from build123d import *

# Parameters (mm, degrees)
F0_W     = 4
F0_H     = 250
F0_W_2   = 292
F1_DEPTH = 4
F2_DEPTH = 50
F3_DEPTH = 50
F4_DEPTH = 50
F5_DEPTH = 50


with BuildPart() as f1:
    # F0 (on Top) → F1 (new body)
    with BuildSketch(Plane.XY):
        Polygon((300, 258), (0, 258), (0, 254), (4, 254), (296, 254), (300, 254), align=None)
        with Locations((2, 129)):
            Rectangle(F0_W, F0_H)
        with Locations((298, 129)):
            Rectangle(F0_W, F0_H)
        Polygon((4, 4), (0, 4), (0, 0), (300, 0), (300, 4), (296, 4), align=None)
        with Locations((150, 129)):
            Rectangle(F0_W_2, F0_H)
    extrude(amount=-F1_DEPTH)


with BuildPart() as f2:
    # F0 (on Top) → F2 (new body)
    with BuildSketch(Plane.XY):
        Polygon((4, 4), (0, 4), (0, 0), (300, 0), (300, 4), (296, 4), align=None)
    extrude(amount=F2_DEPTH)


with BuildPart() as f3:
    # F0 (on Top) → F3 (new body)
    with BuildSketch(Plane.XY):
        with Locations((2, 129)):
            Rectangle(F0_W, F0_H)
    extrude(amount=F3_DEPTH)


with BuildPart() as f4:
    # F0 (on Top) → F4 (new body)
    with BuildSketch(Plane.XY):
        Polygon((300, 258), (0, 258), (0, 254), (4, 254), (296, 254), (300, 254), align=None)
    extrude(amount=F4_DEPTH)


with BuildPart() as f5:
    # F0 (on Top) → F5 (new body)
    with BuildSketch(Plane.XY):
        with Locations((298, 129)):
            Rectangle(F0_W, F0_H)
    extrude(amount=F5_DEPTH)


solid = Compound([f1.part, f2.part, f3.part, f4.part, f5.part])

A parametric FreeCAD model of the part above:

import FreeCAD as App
import Part
import Sketcher
from FreeCAD import Vector
Q = App.Units.Quantity

doc = App.newDocument("Part")
body = doc.addObject("PartDesign::Body", "Body")

# Sketch on XY plane
sketch1 = body.newObject("Sketcher::SketchObject", "Sketch")
sketch1.AttachmentSupport = (doc.getObject("XY_Plane"), [""])
sketch1.MapMode = "FlatFace"
sketch1.addGeometry([
    Part.LineSegment(Vector(300, 258, 0), Vector(0, 258, 0)),
    Part.LineSegment(Vector(0, 258, 0), Vector(0, 0, 0)),
    Part.LineSegment(Vector(0, 0, 0), Vector(300, 0, 0)),
    Part.LineSegment(Vector(300, 0, 0), Vector(300, 258, 0)),
], False)
sketch1.addConstraint([
    Sketcher.Constraint("Coincident", 0, 2, 1, 1),
    Sketcher.Constraint("Coincident", 1, 2, 2, 1),
    Sketcher.Constraint("Coincident", 2, 2, 3, 1),
    Sketcher.Constraint("Coincident", 3, 2, 0, 1),
    Sketcher.Constraint("Horizontal", 0),
    Sketcher.Constraint("Vertical", 1),
    Sketcher.Constraint("Horizontal", 2),
    Sketcher.Constraint("Vertical", 3),
    Sketcher.Constraint("Coincident", 1, 2, -1, 1),
    Sketcher.Constraint("DistanceX", 0, 2, 0, 1, Q("300 mm")),
    Sketcher.Constraint("DistanceY", 1, 2, 1, 1, Q("258 mm")),
])
pad1 = body.newObject("PartDesign::Pad", "Pad")
pad1.Profile = sketch1
pad1.Length = 4
pad1.Reversed = True
body2 = doc.addObject("PartDesign::Body", "Body001")

# Sketch on XY plane
sketch2 = body2.newObject("Sketcher::SketchObject", "Sketch001")
sketch2.AttachmentSupport = (doc.getObject("XY_Plane001"), [""])
sketch2.MapMode = "FlatFace"
sketch2.addGeometry([
    Part.LineSegment(Vector(0, 4, 0), Vector(0, 0, 0)),
    Part.LineSegment(Vector(0, 0, 0), Vector(300, 0, 0)),
    Part.LineSegment(Vector(300, 0, 0), Vector(300, 4, 0)),
    Part.LineSegment(Vector(300, 4, 0), Vector(0, 4, 0)),
], False)
sketch2.addConstraint([
    Sketcher.Constraint("Coincident", 0, 2, 1, 1),
    Sketcher.Constraint("Coincident", 1, 2, 2, 1),
    Sketcher.Constraint("Coincident", 2, 2, 3, 1),
    Sketcher.Constraint("Coincident", 3, 2, 0, 1),
    Sketcher.Constraint("Vertical", 0),
    Sketcher.Constraint("Horizontal", 1),
    Sketcher.Constraint("Vertical", 2),
    Sketcher.Constraint("Horizontal", 3),
    Sketcher.Constraint("Coincident", 0, 2, -1, 1),
    Sketcher.Constraint("DistanceX", 1, 1, 1, 2, Q("300 mm")),
    Sketcher.Constraint("DistanceY", 0, 2, 0, 1, Q("4 mm")),
])
pad2 = body2.newObject("PartDesign::Pad", "Pad001")
pad2.Profile = sketch2
pad2.Length = 50
body3 = doc.addObject("PartDesign::Body", "Body002")

# Sketch on XY plane
sketch3 = body3.newObject("Sketcher::SketchObject", "Sketch002")
sketch3.AttachmentSupport = (doc.getObject("XY_Plane002"), [""])
sketch3.MapMode = "FlatFace"
sketch3.addGeometry([
    Part.LineSegment(Vector(0, 254, 0), Vector(0, 4, 0)),
    Part.LineSegment(Vector(0, 4, 0), Vector(4, 4, 0)),
    Part.LineSegment(Vector(4, 4, 0), Vector(4, 254, 0)),
    Part.LineSegment(Vector(4, 254, 0), Vector(0, 254, 0)),
], False)
sketch3.addConstraint([
    Sketcher.Constraint("Coincident", 0, 2, 1, 1),
    Sketcher.Constraint("Coincident", 1, 2, 2, 1),
    Sketcher.Constraint("Coincident", 2, 2, 3, 1),
    Sketcher.Constraint("Coincident", 3, 2, 0, 1),
    Sketcher.Constraint("Vertical", 0),
    Sketcher.Constraint("Horizontal", 1),
    Sketcher.Constraint("Vertical", 2),
    Sketcher.Constraint("Horizontal", 3),
    Sketcher.Constraint("PointOnObject", 0, 2, -2),
    Sketcher.Constraint("DistanceX", 1, 1, 1, 2, Q("4 mm")),
    Sketcher.Constraint("DistanceY", 0, 2, 0, 1, Q("250 mm")),
    Sketcher.Constraint("DistanceY", -1, 1, 0, 2, Q("4 mm")),
])
pad3 = body3.newObject("PartDesign::Pad", "Pad002")
pad3.Profile = sketch3
pad3.Length = 50
body4 = doc.addObject("PartDesign::Body", "Body003")

# Sketch on XY plane
sketch4 = body4.newObject("Sketcher::SketchObject", "Sketch003")
sketch4.AttachmentSupport = (doc.getObject("XY_Plane003"), [""])
sketch4.MapMode = "FlatFace"
sketch4.addGeometry([
    Part.LineSegment(Vector(300, 258, 0), Vector(0, 258, 0)),
    Part.LineSegment(Vector(0, 258, 0), Vector(0, 254, 0)),
    Part.LineSegment(Vector(0, 254, 0), Vector(300, 254, 0)),
    Part.LineSegment(Vector(300, 254, 0), Vector(300, 258, 0)),
], False)
sketch4.addConstraint([
    Sketcher.Constraint("Coincident", 0, 2, 1, 1),
    Sketcher.Constraint("Coincident", 1, 2, 2, 1),
    Sketcher.Constraint("Coincident", 2, 2, 3, 1),
    Sketcher.Constraint("Coincident", 3, 2, 0, 1),
    Sketcher.Constraint("Horizontal", 0),
    Sketcher.Constraint("Vertical", 1),
    Sketcher.Constraint("Horizontal", 2),
    Sketcher.Constraint("Vertical", 3),
    Sketcher.Constraint("PointOnObject", 0, 2, -2),
    Sketcher.Constraint("DistanceX", 0, 2, 0, 1, Q("300 mm")),
    Sketcher.Constraint("DistanceY", 1, 2, 1, 1, Q("4 mm")),
    Sketcher.Constraint("DistanceY", -1, 1, 0, 2, Q("258 mm")),
])
pad4 = body4.newObject("PartDesign::Pad", "Pad003")
pad4.Profile = sketch4
pad4.Length = 50
body5 = doc.addObject("PartDesign::Body", "Body004")

# Sketch on XY plane
sketch5 = body5.newObject("Sketcher::SketchObject", "Sketch004")
sketch5.AttachmentSupport = (doc.getObject("XY_Plane004"), [""])
sketch5.MapMode = "FlatFace"
sketch5.addGeometry([
    Part.LineSegment(Vector(296, 254, 0), Vector(296, 4, 0)),
    Part.LineSegment(Vector(296, 4, 0), Vector(300, 4, 0)),
    Part.LineSegment(Vector(300, 4, 0), Vector(300, 254, 0)),
    Part.LineSegment(Vector(300, 254, 0), Vector(296, 254, 0)),
], False)
sketch5.addConstraint([
    Sketcher.Constraint("Coincident", 0, 2, 1, 1),
    Sketcher.Constraint("Coincident", 1, 2, 2, 1),
    Sketcher.Constraint("Coincident", 2, 2, 3, 1),
    Sketcher.Constraint("Coincident", 3, 2, 0, 1),
    Sketcher.Constraint("Vertical", 0),
    Sketcher.Constraint("Horizontal", 1),
    Sketcher.Constraint("Vertical", 2),
    Sketcher.Constraint("Horizontal", 3),
    Sketcher.Constraint("DistanceX", 1, 1, 1, 2, Q("4 mm")),
    Sketcher.Constraint("DistanceY", 0, 2, 0, 1, Q("250 mm")),
    Sketcher.Constraint("DistanceX", -1, 1, 0, 2, Q("296 mm")),
    Sketcher.Constraint("DistanceY", -1, 1, 0, 2, Q("4 mm")),
])
pad5 = body5.newObject("PartDesign::Pad", "Pad004")
pad5.Profile = sketch5
pad5.Length = 50

doc.recompute()
